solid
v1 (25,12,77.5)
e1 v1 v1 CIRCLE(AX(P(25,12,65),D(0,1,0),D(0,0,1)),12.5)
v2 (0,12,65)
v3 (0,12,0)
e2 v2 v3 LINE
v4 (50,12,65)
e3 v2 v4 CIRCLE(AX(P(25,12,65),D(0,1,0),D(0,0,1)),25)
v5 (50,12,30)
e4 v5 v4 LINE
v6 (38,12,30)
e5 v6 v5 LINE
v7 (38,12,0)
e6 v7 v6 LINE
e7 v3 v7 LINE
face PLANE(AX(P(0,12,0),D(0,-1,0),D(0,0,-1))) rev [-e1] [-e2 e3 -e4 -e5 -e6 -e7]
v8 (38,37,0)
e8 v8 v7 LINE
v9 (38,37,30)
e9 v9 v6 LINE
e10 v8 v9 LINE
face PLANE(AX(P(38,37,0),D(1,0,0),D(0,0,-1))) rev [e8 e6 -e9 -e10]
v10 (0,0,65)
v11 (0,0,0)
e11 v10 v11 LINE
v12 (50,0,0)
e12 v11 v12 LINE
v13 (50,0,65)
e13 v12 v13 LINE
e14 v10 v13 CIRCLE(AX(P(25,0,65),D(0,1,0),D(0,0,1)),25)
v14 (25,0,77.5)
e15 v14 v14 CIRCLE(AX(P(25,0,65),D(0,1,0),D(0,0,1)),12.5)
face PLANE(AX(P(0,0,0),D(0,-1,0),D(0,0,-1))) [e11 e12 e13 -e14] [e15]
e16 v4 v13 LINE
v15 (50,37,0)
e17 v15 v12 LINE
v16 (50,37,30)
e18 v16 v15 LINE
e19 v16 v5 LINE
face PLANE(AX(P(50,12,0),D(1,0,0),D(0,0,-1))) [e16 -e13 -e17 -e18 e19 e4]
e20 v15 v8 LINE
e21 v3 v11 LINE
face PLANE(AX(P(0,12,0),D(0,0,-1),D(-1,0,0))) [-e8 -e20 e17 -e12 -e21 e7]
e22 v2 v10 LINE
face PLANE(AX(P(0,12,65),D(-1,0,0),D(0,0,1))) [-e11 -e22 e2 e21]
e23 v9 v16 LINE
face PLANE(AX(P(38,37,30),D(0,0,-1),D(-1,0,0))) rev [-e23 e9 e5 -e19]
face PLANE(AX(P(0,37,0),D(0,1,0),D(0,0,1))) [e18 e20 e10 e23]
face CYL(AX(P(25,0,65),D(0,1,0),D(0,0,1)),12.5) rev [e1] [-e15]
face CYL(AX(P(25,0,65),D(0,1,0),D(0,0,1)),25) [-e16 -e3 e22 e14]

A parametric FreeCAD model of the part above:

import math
import FreeCAD as App
import Part
import Sketcher


def add_polygon(sketch, points):
    """Adds a closed chain of lines whose ends are joined by coincident constraints."""
    first, n = sketch.GeometryCount, len(points)
    for a, b in zip(points, points[1:] + points[:1]):
        sketch.addGeometry(Part.LineSegment(App.Vector(*a, 0), App.Vector(*b, 0)), False)
    for i in range(n):
        sketch.addConstraint(Sketcher.Constraint("Coincident", first + i, 2, first + (i + 1) % n, 1))

doc = App.newDocument("Part")
params = doc.addObject("Spreadsheet::Sheet", "Params")
for row, (alias, value) in enumerate([
    ("sketch1_width", "50 mm"),
    ("sketch1_height", "65 mm"),
    ("pad1_length", "12 mm"),
    ("sketch2_radius", "25 mm"),
    ("pad2_length", "12 mm"),
    ("sketch3_diameter", "25 mm"),
    ("pocket1_length", "12 mm"),
    ("sketch4_width", "12 mm"),
    ("sketch4_height", "30 mm"),
    ("pad3_length", "25 mm"),
], start=1):
    params.set(f"A{row}", alias)
    params.set(f"B{row}", "=" + value)
    params.setAlias(f"B{row}", alias)

body = doc.addObject("PartDesign::Body", "Body")

# Sketch on XZ plane
sketch1 = doc.addObject("Sketcher::SketchObject", "Sketch")
body.addObject(sketch1)
sketch1.AttachmentSupport = (doc.XZ_Plane, [""])
sketch1.MapMode = "FlatFace"
add_polygon(sketch1, [(0, 0), (0, 65), (50, 65), (50, 0)])  # lines 0-3
sketch1.addConstraint(Sketcher.Constraint("Vertical", 0))
sketch1.addConstraint(Sketcher.Constraint("Horizontal", 1))
sketch1.addConstraint(Sketcher.Constraint("Vertical", 2))
sketch1.addConstraint(Sketcher.Constraint("Horizontal", 3))
sketch1.addConstraint(Sketcher.Constraint("Coincident", 3, 2, -1, 1))
sketch1.addConstraint(Sketcher.Constraint("DistanceX", 1, 1, 1, 2, 50.0))
sketch1.addConstraint(Sketcher.Constraint("DistanceY", 0, 1, 0, 2, 65.0))
sketch1.setExpression("Constraints[9]", "Params.sketch1_width")
sketch1.setExpression("Constraints[10]", "Params.sketch1_height")
pad1 = doc.addObject("PartDesign::Pad", "Pad")
body.addObject(pad1)
pad1.Profile = sketch1
pad1.setExpression("Length", "Params.pad1_length")
pad1.Reversed = True

# Sketch on XZ plane
sketch2 = doc.addObject("Sketcher::SketchObject", "Sketch001")
body.addObject(sketch2)
sketch2.AttachmentSupport = (doc.XZ_Plane, [""])
sketch2.MapMode = "FlatFace"
sketch2.AttachmentOffset = App.Placement(App.Vector(0, 0, -12), App.Rotation())
sketch2.addGeometry(Part.LineSegment(App.Vector(50, 65, 0), App.Vector(0, 65, 0)), False)
sketch2.addGeometry(Part.ArcOfCircle(Part.Circle(App.Vector(25, 65, 0), App.Vector(0, 0, 1), 25), math.radians(0), math.radians(180)), False)
sketch2.addConstraint(Sketcher.Constraint("Coincident", 0, 1, 1, 1))
sketch2.addConstraint(Sketcher.Constraint("Coincident", 1, 2, 0, 2))
sketch2.addConstraint(Sketcher.Constraint("Horizontal", 0))
sketch2.addConstraint(Sketcher.Constraint("PointOnObject", 1, 2, -2))
sketch2.addConstraint(Sketcher.Constraint("Horizontal", 1, 3, 0, 1))
sketch2.addConstraint(Sketcher.Constraint("Radius", 1, 25.0))
sketch2.addConstraint(Sketcher.Constraint("DistanceY", -1, 1, 1, 3, 65.0))
sketch2.setExpression("Constraints[5]", "Params.sketch2_radius")
pad2 = doc.addObject("PartDesign::Pad", "Pad001")
body.addObject(pad2)
pad2.Profile = sketch2
pad2.setExpression("Length", "Params.pad2_length")

# Sketch on XZ plane
sketch3 = doc.addObject("Sketcher::SketchObject", "Sketch002")
body.addObject(sketch3)
sketch3.AttachmentSupport = (doc.XZ_Plane, [""])
sketch3.MapMode = "FlatFace"
sketch3.AttachmentOffset = App.Placement(App.Vector(0, 0, -12), App.Rotation())
sketch3.addGeometry(Part.Circle(App.Vector(25, 65, 0), App.Vector(0, 0, 1), 12.5), False)
sketch3.addConstraint(Sketcher.Constraint("Diameter", 0, 25.0))
sketch3.addConstraint(Sketcher.Constraint("DistanceX", -1, 1, 0, 3, 25.0))
sketch3.addConstraint(Sketcher.Constraint("DistanceY", -1, 1, 0, 3, 65.0))
sketch3.setExpression("Constraints[0]", "Params.sketch3_diameter")
pocket1 = doc.addObject("PartDesign::Pocket", "Pocket")
body.addObject(pocket1)
pocket1.Profile = sketch3
pocket1.setExpression("Length", "Params.pocket1_length")
pocket1.Reversed = True

# Sketch on XZ plane
sketch4 = doc.addObject("Sketcher::SketchObject", "Sketch003")
body.addObject(sketch4)
sketch4.AttachmentSupport = (doc.XZ_Plane, [""])
sketch4.MapMode = "FlatFace"
sketch4.AttachmentOffset = App.Placement(App.Vector(0, 0, -12), App.Rotation())
add_polygon(sketch4, [(38, 0), (38, 30), (50, 30), (50, 0)])  # lines 0-3
sketch4.addConstraint(Sketcher.Constraint("Vertical", 0))
sketch4.addConstraint(Sketcher.Constraint("Horizontal", 1))
sketch4.addConstraint(Sketcher.Constraint("Vertical", 2))
sketch4.addConstraint(Sketcher.Constraint("Horizontal", 3))
sketch4.addConstraint(Sketcher.Constraint("PointOnObject", 2, 2, -1))
sketch4.addConstraint(Sketcher.Constraint("DistanceX", 1, 1, 1, 2, 12.0))
sketch4.addConstraint(Sketcher.Constraint("DistanceY", 0, 1, 0, 2, 30.0))
sketch4.addConstraint(Sketcher.Constraint("DistanceX", -1, 1, 0, 2, 38.0))
sketch4.setExpression("Constraints[9]", "Params.sketch4_width")
sketch4.setExpression("Constraints[10]", "Params.sketch4_height")
pad3 = doc.addObject("PartDesign::Pad", "Pad002")
body.addObject(pad3)
pad3.Profile = sketch4
pad3.setExpression("Length", "Params.pad3_length")
pad3.Reversed = True

doc.recompute()
